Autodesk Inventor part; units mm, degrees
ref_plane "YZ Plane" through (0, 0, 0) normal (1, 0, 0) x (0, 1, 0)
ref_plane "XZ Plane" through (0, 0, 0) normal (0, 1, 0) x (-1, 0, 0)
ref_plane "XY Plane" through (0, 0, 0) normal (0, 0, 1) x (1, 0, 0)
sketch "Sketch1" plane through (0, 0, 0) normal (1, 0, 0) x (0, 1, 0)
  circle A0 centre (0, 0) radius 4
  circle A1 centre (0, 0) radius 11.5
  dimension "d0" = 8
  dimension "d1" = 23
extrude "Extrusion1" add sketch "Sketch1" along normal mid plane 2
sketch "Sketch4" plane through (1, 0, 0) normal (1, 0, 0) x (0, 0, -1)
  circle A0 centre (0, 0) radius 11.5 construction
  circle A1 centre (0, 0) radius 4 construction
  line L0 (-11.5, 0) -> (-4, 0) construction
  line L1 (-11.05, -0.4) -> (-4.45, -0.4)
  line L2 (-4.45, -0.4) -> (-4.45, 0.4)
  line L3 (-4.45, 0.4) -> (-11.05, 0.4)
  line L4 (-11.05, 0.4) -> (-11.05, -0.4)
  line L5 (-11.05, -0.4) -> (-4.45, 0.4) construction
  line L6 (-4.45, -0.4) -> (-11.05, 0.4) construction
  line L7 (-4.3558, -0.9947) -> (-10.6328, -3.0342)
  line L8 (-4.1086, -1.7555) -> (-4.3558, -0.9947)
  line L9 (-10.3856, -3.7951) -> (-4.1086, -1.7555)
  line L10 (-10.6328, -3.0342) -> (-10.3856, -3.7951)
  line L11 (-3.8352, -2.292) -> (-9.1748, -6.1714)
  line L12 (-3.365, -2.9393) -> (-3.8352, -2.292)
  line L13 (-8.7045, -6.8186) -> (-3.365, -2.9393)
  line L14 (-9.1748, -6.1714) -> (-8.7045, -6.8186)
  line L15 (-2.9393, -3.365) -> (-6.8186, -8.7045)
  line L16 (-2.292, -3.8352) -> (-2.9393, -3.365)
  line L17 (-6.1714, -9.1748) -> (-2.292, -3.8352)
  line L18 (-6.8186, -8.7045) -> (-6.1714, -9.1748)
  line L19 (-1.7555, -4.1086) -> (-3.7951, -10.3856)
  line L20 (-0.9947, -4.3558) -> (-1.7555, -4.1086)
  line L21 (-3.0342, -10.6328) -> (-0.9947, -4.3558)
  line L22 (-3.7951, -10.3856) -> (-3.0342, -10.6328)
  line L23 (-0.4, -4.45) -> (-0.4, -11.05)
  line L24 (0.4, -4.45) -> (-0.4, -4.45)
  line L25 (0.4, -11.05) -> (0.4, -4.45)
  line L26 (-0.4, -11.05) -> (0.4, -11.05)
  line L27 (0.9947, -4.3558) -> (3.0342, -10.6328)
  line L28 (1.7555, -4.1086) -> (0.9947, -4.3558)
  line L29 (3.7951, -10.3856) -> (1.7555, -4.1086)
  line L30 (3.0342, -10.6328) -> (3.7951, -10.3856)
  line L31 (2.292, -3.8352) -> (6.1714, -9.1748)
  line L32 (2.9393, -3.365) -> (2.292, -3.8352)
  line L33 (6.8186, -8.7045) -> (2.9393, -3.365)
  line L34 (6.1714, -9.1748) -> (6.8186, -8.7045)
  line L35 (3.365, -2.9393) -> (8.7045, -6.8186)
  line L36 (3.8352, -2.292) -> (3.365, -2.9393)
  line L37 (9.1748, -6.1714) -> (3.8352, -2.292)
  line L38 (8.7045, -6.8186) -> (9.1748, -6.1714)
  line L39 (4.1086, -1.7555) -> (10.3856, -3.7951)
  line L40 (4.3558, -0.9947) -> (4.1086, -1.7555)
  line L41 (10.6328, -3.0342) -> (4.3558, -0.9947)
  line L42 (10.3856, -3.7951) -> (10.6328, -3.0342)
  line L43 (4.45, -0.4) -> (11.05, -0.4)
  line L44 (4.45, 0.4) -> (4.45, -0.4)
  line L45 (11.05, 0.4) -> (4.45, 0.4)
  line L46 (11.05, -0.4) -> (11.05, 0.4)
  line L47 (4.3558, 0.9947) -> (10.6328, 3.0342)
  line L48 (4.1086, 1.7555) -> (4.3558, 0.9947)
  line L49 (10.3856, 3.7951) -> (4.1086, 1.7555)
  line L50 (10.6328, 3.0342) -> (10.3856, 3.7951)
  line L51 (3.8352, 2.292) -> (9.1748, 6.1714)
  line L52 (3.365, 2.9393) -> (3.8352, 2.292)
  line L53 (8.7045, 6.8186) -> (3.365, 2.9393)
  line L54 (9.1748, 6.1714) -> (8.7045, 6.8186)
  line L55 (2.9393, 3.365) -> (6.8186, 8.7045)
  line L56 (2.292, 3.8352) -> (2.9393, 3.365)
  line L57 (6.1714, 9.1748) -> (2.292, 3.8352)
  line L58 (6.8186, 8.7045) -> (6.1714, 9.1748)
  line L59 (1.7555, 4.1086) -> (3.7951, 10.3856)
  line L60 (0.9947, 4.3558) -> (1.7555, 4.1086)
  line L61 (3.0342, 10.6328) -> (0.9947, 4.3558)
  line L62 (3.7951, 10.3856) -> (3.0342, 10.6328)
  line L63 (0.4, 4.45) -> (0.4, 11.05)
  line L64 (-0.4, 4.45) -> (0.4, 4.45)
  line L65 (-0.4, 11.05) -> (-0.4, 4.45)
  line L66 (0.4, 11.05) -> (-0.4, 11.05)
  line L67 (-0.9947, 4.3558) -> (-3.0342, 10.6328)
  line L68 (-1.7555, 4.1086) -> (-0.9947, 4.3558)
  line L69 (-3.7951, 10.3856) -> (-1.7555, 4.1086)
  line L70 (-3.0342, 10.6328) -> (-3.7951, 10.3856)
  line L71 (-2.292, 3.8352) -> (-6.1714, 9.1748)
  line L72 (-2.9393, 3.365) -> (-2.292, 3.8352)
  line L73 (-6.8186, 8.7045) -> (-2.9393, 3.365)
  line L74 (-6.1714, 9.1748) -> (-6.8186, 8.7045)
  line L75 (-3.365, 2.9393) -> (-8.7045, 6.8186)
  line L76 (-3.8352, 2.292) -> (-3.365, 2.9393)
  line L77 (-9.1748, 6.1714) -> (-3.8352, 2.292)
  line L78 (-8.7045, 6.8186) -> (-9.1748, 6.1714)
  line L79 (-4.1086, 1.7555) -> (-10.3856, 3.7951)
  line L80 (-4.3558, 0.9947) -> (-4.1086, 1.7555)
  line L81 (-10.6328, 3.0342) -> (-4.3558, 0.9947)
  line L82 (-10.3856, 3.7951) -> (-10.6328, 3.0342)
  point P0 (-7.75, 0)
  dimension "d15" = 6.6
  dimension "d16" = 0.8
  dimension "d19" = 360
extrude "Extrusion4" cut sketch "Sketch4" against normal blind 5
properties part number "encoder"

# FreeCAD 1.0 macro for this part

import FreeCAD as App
import Part
import Sketcher

V = App.Vector
Q = App.Units.Quantity

doc = App.newDocument("Part")
body = doc.addObject("PartDesign::Body", "Body")

# Sketch on YZ plane
sketch1 = body.newObject("Sketcher::SketchObject", "Sketch")
sketch1.AttachmentSupport = (doc.getObject("YZ_Plane"), [""])
sketch1.MapMode = "FlatFace"
sketch1.addGeometry([
    Part.Circle(V(0, 0, 0), V(0, 0, 1), 11.5),
    Part.Circle(V(0, 0, 0), V(0, 0, 1), 4),
], False)
sketch1.addConstraint([
    Sketcher.Constraint("Coincident", 0, 3, -1, 1),
    Sketcher.Constraint("Coincident", 1, 3, -1, 1),
    Sketcher.Constraint("Diameter", 0, Q("23 mm")),
    Sketcher.Constraint("Diameter", 1, Q("8 mm")),
])
pad1 = body.newObject("PartDesign::Pad", "Pad")
pad1.Profile = sketch1
pad1.Length = 2
pad1.Midplane = True

# Sketch on YZ plane
sketch2 = body.newObject("Sketcher::SketchObject", "Sketch001")
sketch2.AttachmentSupport = (doc.getObject("YZ_Plane"), [""])
sketch2.MapMode = "FlatFace"
sketch2.AttachmentOffset = App.Placement(V(0, 0, 1), App.Rotation())
sketch2.addGeometry([
    Part.LineSegment(V(0.4, 11.1, 0), V(-0.4, 11.1, 0)),  # 0
    Part.LineSegment(V(-0.4, 11.1, 0), V(-0.4, 4.5, 0)),  # 1
    Part.LineSegment(V(-0.4, 4.5, 0), V(0.4, 4.5, 0)),  # 2
    Part.LineSegment(V(0.4, 4.5, 0), V(0.4, 11.1, 0)),  # 3
    Part.LineSegment(V(-1.8, 4.1, 0), V(-1, 4.4, 0)),  # 4
    Part.LineSegment(V(-1, 4.4, 0), V(-3, 10.6, 0)),  # 5
    Part.LineSegment(V(-3, 10.6, 0), V(-3.8, 10.4, 0)),  # 6
    Part.LineSegment(V(-3.8, 10.4, 0), V(-1.8, 4.1, 0)),  # 7
    Part.LineSegment(V(-2.9, 3.4, 0), V(-2.3, 3.8, 0)),  # 8
    Part.LineSegment(V(-2.3, 3.8, 0), V(-6.2, 9.2, 0)),  # 9
    Part.LineSegment(V(-6.2, 9.2, 0), V(-6.8, 8.7, 0)),  # 10
    Part.LineSegment(V(-6.8, 8.7, 0), V(-2.9, 3.4, 0)),  # 11
    Part.LineSegment(V(-3.8, 2.3, 0), V(-3.4, 2.9, 0)),  # 12
    Part.LineSegment(V(-3.4, 2.9, 0), V(-8.7, 6.8, 0)),  # 13
    Part.LineSegment(V(-8.7, 6.8, 0), V(-9.2, 6.2, 0)),  # 14
    Part.LineSegment(V(-9.2, 6.2, 0), V(-3.8, 2.3, 0)),  # 15
    Part.LineSegment(V(-4.4, 1, 0), V(-4.1, 1.8, 0)),  # 16
    Part.LineSegment(V(-4.1, 1.8, 0), V(-10.4, 3.8, 0)),  # 17
    Part.LineSegment(V(-10.4, 3.8, 0), V(-10.6, 3, 0)),  # 18
    Part.LineSegment(V(-10.6, 3, 0), V(-4.4, 1, 0)),  # 19
    Part.LineSegment(V(-4.5, -0.4, 0), V(-4.5, 0.4, 0)),  # 20
    Part.LineSegment(V(-4.5, 0.4, 0), V(-11.1, 0.4, 0)),  # 21
    Part.LineSegment(V(-11.1, 0.4, 0), V(-11.1, -0.4, 0)),  # 22
    Part.LineSegment(V(-11.1, -0.4, 0), V(-4.5, -0.4, 0)),  # 23
    Part.LineSegment(V(-4.1, -1.8, 0), V(-4.4, -1, 0)),  # 24
    Part.LineSegment(V(-4.4, -1, 0), V(-10.6, -3, 0)),  # 25
    Part.LineSegment(V(-10.6, -3, 0), V(-10.4, -3.8, 0)),  # 26
    Part.LineSegment(V(-10.4, -3.8, 0), V(-4.1, -1.8, 0)),  # 27
    Part.LineSegment(V(-3.4, -2.9, 0), V(-3.8, -2.3, 0)),  # 28
    Part.LineSegment(V(-3.8, -2.3, 0), V(-9.2, -6.2, 0)),  # 29
    Part.LineSegment(V(-9.2, -6.2, 0), V(-8.7, -6.8, 0)),  # 30
    Part.LineSegment(V(-8.7, -6.8, 0), V(-3.4, -2.9, 0)),  # 31
    Part.LineSegment(V(-2.3, -3.8, 0), V(-2.9, -3.4, 0)),  # 32
    Part.LineSegment(V(-2.9, -3.4, 0), V(-6.8, -8.7, 0)),  # 33
    Part.LineSegment(V(-6.8, -8.7, 0), V(-6.2, -9.2, 0)),  # 34
    Part.LineSegment(V(-6.2, -9.2, 0), V(-2.3, -3.8, 0)),  # 35
    Part.LineSegment(V(-1, -4.4, 0), V(-1.8, -4.1, 0)),  # 36
    Part.LineSegment(V(-1.8, -4.1, 0), V(-3.8, -10.4, 0)),  # 37
    Part.LineSegment(V(-3.8, -10.4, 0), V(-3, -10.6, 0)),  # 38
    Part.LineSegment(V(-3, -10.6, 0), V(-1, -4.4, 0)),  # 39
    Part.LineSegment(V(0.4, -4.5, 0), V(-0.4, -4.5, 0)),  # 40
    Part.LineSegment(V(-0.4, -4.5, 0), V(-0.4, -11.1, 0)),  # 41
    Part.LineSegment(V(-0.4, -11.1, 0), V(0.4, -11.1, 0)),  # 42
    Part.LineSegment(V(0.4, -11.1, 0), V(0.4, -4.5, 0)),  # 43
    Part.LineSegment(V(1.8, -4.1, 0), V(1, -4.4, 0)),  # 44
    Part.LineSegment(V(1, -4.4, 0), V(3, -10.6, 0)),  # 45
    Part.LineSegment(V(3, -10.6, 0), V(3.8, -10.4, 0)),  # 46
    Part.LineSegment(V(3.8, -10.4, 0), V(1.8, -4.1, 0)),  # 47
    Part.LineSegment(V(2.9, -3.4, 0), V(2.3, -3.8, 0)),  # 48
    Part.LineSegment(V(2.3, -3.8, 0), V(6.2, -9.2, 0)),  # 49
    Part.LineSegment(V(6.2, -9.2, 0), V(6.8, -8.7, 0)),  # 50
    Part.LineSegment(V(6.8, -8.7, 0), V(2.9, -3.4, 0)),  # 51
    Part.LineSegment(V(3.8, -2.3, 0), V(3.4, -2.9, 0)),  # 52
    Part.LineSegment(V(3.4, -2.9, 0), V(8.7, -6.8, 0)),  # 53
    Part.LineSegment(V(8.7, -6.8, 0), V(9.2, -6.2, 0)),  # 54
    Part.LineSegment(V(9.2, -6.2, 0), V(3.8, -2.3, 0)),  # 55
    Part.LineSegment(V(4.4, -1, 0), V(4.1, -1.8, 0)),  # 56
    Part.LineSegment(V(4.1, -1.8, 0), V(10.4, -3.8, 0)),  # 57
    Part.LineSegment(V(10.4, -3.8, 0), V(10.6, -3, 0)),  # 58
    Part.LineSegment(V(10.6, -3, 0), V(4.4, -1, 0)),  # 59
    Part.LineSegment(V(4.5, 0.4, 0), V(4.5, -0.4, 0)),  # 60
    Part.LineSegment(V(4.5, -0.4, 0), V(11.1, -0.4, 0)),  # 61
    Part.LineSegment(V(11.1, -0.4, 0), V(11.1, 0.4, 0)),  # 62
    Part.LineSegment(V(11.1, 0.4, 0), V(4.5, 0.4, 0)),  # 63
    Part.LineSegment(V(4.1, 1.8, 0), V(4.4, 1, 0)),  # 64
    Part.LineSegment(V(4.4, 1, 0), V(10.6, 3, 0)),  # 65
    Part.LineSegment(V(10.6, 3, 0), V(10.4, 3.8, 0)),  # 66
    Part.LineSegment(V(10.4, 3.8, 0), V(4.1, 1.8, 0)),  # 67
    Part.LineSegment(V(3.4, 2.9, 0), V(3.8, 2.3, 0)),  # 68
    Part.LineSegment(V(3.8, 2.3, 0), V(9.2, 6.2, 0)),  # 69
    Part.LineSegment(V(9.2, 6.2, 0), V(8.7, 6.8, 0)),  # 70
    Part.LineSegment(V(8.7, 6.8, 0), V(3.4, 2.9, 0)),  # 71
    Part.LineSegment(V(2.3, 3.8, 0), V(2.9, 3.4, 0)),  # 72
    Part.LineSegment(V(2.9, 3.4, 0), V(6.8, 8.7, 0)),  # 73
    Part.LineSegment(V(6.8, 8.7, 0), V(6.2, 9.2, 0)),  # 74
    Part.LineSegment(V(6.2, 9.2, 0), V(2.3, 3.8, 0)),  # 75
    Part.LineSegment(V(1, 4.4, 0), V(1.8, 4.1, 0)),  # 76
    Part.LineSegment(V(1.8, 4.1, 0), V(3.8, 10.4, 0)),  # 77
    Part.LineSegment(V(3.8, 10.4, 0), V(3, 10.6, 0)),  # 78
    Part.LineSegment(V(3, 10.6, 0), V(1, 4.4, 0)),  # 79
], False)
sketch2.addConstraint([
    Sketcher.Constraint("Coincident", 0, 2, 1, 1),
    Sketcher.Constraint("Coincident", 1, 2, 2, 1),
    Sketcher.Constraint("Coincident", 2, 2, 3, 1),
    Sketcher.Constraint("Coincident", 3, 2, 0, 1),
    Sketcher.Constraint("Coincident", 4, 2, 5, 1),
    Sketcher.Constraint("Coincident", 5, 2, 6, 1),
    Sketcher.Constraint("Coincident", 6, 2, 7, 1),
    Sketcher.Constraint("Coincident", 7, 2, 4, 1),
    Sketcher.Constraint("Coincident", 8, 2, 9, 1),
    Sketcher.Constraint("Coincident", 9, 2, 10, 1),
    Sketcher.Constraint("Coincident", 10, 2, 11, 1),
    Sketcher.Constraint("Coincident", 11, 2, 8, 1),
    Sketcher.Constraint("Coincident", 12, 2, 13, 1),
    Sketcher.Constraint("Coincident", 13, 2, 14, 1),
    Sketcher.Constraint("Coincident", 14, 2, 15, 1),
    Sketcher.Constraint("Coincident", 15, 2, 12, 1),
    Sketcher.Constraint("Coincident", 16, 2, 17, 1),
    Sketcher.Constraint("Coincident", 17, 2, 18, 1),
    Sketcher.Constraint("Coincident", 18, 2, 19, 1),
    Sketcher.Constraint("Coincident", 19, 2, 16, 1),
    Sketcher.Constraint("Coincident", 20, 2, 21, 1),
    Sketcher.Constraint("Coincident", 21, 2, 22, 1),
    Sketcher.Constraint("Coincident", 22, 2, 23, 1),
    Sketcher.Constraint("Coincident", 23, 2, 20, 1),
    Sketcher.Constraint("Coincident", 24, 2, 25, 1),
    Sketcher.Constraint("Coincident", 25, 2, 26, 1),
    Sketcher.Constraint("Coincident", 26, 2, 27, 1),
    Sketcher.Constraint("Coincident", 27, 2, 24, 1),
    Sketcher.Constraint("Coincident", 28, 2, 29, 1),
    Sketcher.Constraint("Coincident", 29, 2, 30, 1),
    Sketcher.Constraint("Coincident", 30, 2, 31, 1),
    Sketcher.Constraint("Coincident", 31, 2, 28, 1),
    Sketcher.Constraint("Coincident", 32, 2, 33, 1),
    Sketcher.Constraint("Coincident", 33, 2, 34, 1),
    Sketcher.Constraint("Coincident", 34, 2, 35, 1),
    Sketcher.Constraint("Coincident", 35, 2, 32, 1),
    Sketcher.Constraint("Coincident", 36, 2, 37, 1),
    Sketcher.Constraint("Coincident", 37, 2, 38, 1),
    Sketcher.Constraint("Coincident", 38, 2, 39, 1),
    Sketcher.Constraint("Coincident", 39, 2, 36, 1),
    Sketcher.Constraint("Coincident", 40, 2, 41, 1),
    Sketcher.Constraint("Coincident", 41, 2, 42, 1),
    Sketcher.Constraint("Coincident", 42, 2, 43, 1),
    Sketcher.Constraint("Coincident", 43, 2, 40, 1),
    Sketcher.Constraint("Coincident", 44, 2, 45, 1),
    Sketcher.Constraint("Coincident", 45, 2, 46, 1),
    Sketcher.Constraint("Coincident", 46, 2, 47, 1),
    Sketcher.Constraint("Coincident", 47, 2, 44, 1),
    Sketcher.Constraint("Coincident", 48, 2, 49, 1),
    Sketcher.Constraint("Coincident", 49, 2, 50, 1),
    Sketcher.Constraint("Coincident", 50, 2, 51, 1),
    Sketcher.Constraint("Coincident", 51, 2, 48, 1),
    Sketcher.Constraint("Coincident", 52, 2, 53, 1),
    Sketcher.Constraint("Coincident", 53, 2, 54, 1),
    Sketcher.Constraint("Coincident", 54, 2, 55, 1),
    Sketcher.Constraint("Coincident", 55, 2, 52, 1),
    Sketcher.Constraint("Coincident", 56, 2, 57, 1),
    Sketcher.Constraint("Coincident", 57, 2, 58, 1),
    Sketcher.Constraint("Coincident", 58, 2, 59, 1),
    Sketcher.Constraint("Coincident", 59, 2, 56, 1),
    Sketcher.Constraint("Coincident", 60, 2, 61, 1),
    Sketcher.Constraint("Coincident", 61, 2, 62, 1),
    Sketcher.Constraint("Coincident", 62, 2, 63, 1),
    Sketcher.Constraint("Coincident", 63, 2, 60, 1),
    Sketcher.Constraint("Coincident", 64, 2, 65, 1),
    Sketcher.Constraint("Coincident", 65, 2, 66, 1),
    Sketcher.Constraint("Coincident", 66, 2, 67, 1),
    Sketcher.Constraint("Coincident", 67, 2, 64, 1),
    Sketcher.Constraint("Coincident", 68, 2, 69, 1),
    Sketcher.Constraint("Coincident", 69, 2, 70, 1),
    Sketcher.Constraint("Coincident", 70, 2, 71, 1),
    Sketcher.Constraint("Coincident", 71, 2, 68, 1),
    Sketcher.Constraint("Coincident", 72, 2, 73, 1),
    Sketcher.Constraint("Coincident", 73, 2, 74, 1),
    Sketcher.Constraint("Coincident", 74, 2, 75, 1),
    Sketcher.Constraint("Coincident", 75, 2, 72, 1),
    Sketcher.Constraint("Coincident", 76, 2, 77, 1),
    Sketcher.Constraint("Coincident", 77, 2, 78, 1),
    Sketcher.Constraint("Coincident", 78, 2, 79, 1),
    Sketcher.Constraint("Coincident", 79, 2, 76, 1),
    Sketcher.Constraint("Horizontal", 0),
    Sketcher.Constraint("Vertical", 1),
    Sketcher.Constraint("Horizontal", 2),
    Sketcher.Constraint("Vertical", 3),
    Sketcher.Constraint("Vertical", 20),
    Sketcher.Constraint("Horizontal", 21),
    Sketcher.Constraint("Vertical", 22),
    Sketcher.Constraint("Horizontal", 23),
    Sketcher.Constraint("Horizontal", 40),
    Sketcher.Constraint("Vertical", 41),
    Sketcher.Constraint("Horizontal", 42),
    Sketcher.Constraint("Vertical", 43),
    Sketcher.Constraint("Vertical", 60),
    Sketcher.Constraint("Horizontal", 61),
    Sketcher.Constraint("Vertical", 62),
    Sketcher.Constraint("Horizontal", 63),
    Sketcher.Constraint("Symmetric", 2, 2, 40, 2, -1, 1),
    Sketcher.Constraint("Symmetric", 0, 2, 42, 2, -1, 1),
    Sketcher.Constraint("Symmetric", 4, 2, 44, 2, -1, 1),
    Sketcher.Constraint("Symmetric", 5, 2, 45, 2, -1, 1),
    Sketcher.Constraint("Symmetric", 6, 2, 46, 2, -1, 1),
    Sketcher.Constraint("Symmetric", 7, 2, 47, 2, -1, 1),
    Sketcher.Constraint("Symmetric", 8, 2, 48, 2, -1, 1),
    Sketcher.Constraint("Symmetric", 9, 2, 49, 2, -1, 1),
    Sketcher.Constraint("Symmetric", 10, 2, 50, 2, -1, 1),
    Sketcher.Constraint("Symmetric", 11, 2, 51, 2, -1, 1),
    Sketcher.Constraint("Symmetric", 12, 2, 52, 2, -1, 1),
    Sketcher.Constraint("Symmetric", 13, 2, 53, 2, -1, 1),
    Sketcher.Constraint("Symmetric", 14, 2, 54, 2, -1, 1),
    Sketcher.Constraint("Symmetric", 15, 2, 55, 2, -1, 1),
    Sketcher.Constraint("Symmetric", 16, 2, 56, 2, -1, 1),
    Sketcher.Constraint("Symmetric", 17, 2, 57, 2, -1, 1),
    Sketcher.Constraint("Symmetric", 18, 2, 58, 2, -1, 1),
    Sketcher.Constraint("Symmetric", 19, 2, 59, 2, -1, 1),
    Sketcher.Constraint("Symmetric", 20, 2, 60, 2, -1, 1),
    Sketcher.Constraint("Symmetric", 22, 2, 62, 2, -1, 1),
    Sketcher.Constraint("Symmetric", 24, 2, 64, 2, -1, 1),
    Sketcher.Constraint("Symmetric", 25, 2, 65, 2, -1, 1),
    Sketcher.Constraint("Symmetric", 26, 2, 66, 2, -1, 1),
    Sketcher.Constraint("Symmetric", 27, 2, 67, 2, -1, 1),
    Sketcher.Constraint("Symmetric", 28, 2, 68, 2, -1, 1),
    Sketcher.Constraint("Symmetric", 29, 2, 69, 2, -1, 1),
    Sketcher.Constraint("Symmetric", 30, 2, 70, 2, -1, 1),
    Sketcher.Constraint("Symmetric", 31, 2, 71, 2, -1, 1),
    Sketcher.Constraint("Symmetric", 32, 2, 72, 2, -1, 1),
    Sketcher.Constraint("Symmetric", 33, 2, 73, 2, -1, 1),
    Sketcher.Constraint("Symmetric", 34, 2, 74, 2, -1, 1),
    Sketcher.Constraint("Symmetric", 35, 2, 75, 2, -1, 1),
    Sketcher.Constraint("Symmetric", 36, 2, 76, 2, -1, 1),
    Sketcher.Constraint("Symmetric", 37, 2, 77, 2, -1, 1),
    Sketcher.Constraint("Symmetric", 38, 2, 78, 2, -1, 1),
    Sketcher.Constraint("Symmetric", 39, 2, 79, 2, -1, 1),
    Sketcher.Constraint("Symmetric", 39, 2, 44, 2, -2),
    Sketcher.Constraint("Symmetric", 38, 2, 45, 2, -2),
    Sketcher.Constraint("Symmetric", 37, 2, 46, 2, -2),
    Sketcher.Constraint("Symmetric", 36, 2, 47, 2, -2),
    Sketcher.Constraint("Symmetric", 35, 2, 48, 2, -2),
    Sketcher.Constraint("Symmetric", 34, 2, 49, 2, -2),
    Sketcher.Constraint("Symmetric", 33, 2, 50, 2, -2),
    Sketcher.Constraint("Symmetric", 32, 2, 51, 2, -2),
    Sketcher.Constraint("Symmetric", 31, 2, 52, 2, -2),
    Sketcher.Constraint("Symmetric", 30, 2, 53, 2, -2),
    Sketcher.Constraint("Symmetric", 29, 2, 54, 2, -2),
    Sketcher.Constraint("Symmetric", 28, 2, 55, 2, -2),
    Sketcher.Constraint("Symmetric", 27, 2, 56, 2, -2),
    Sketcher.Constraint("Symmetric", 26, 2, 57, 2, -2),
    Sketcher.Constraint("Symmetric", 25, 2, 58, 2, -2),
    Sketcher.Constraint("Symmetric", 24, 2, 59, 2, -2),
    Sketcher.Constraint("Perpendicular", 4, 5),
    Sketcher.Constraint("Perpendicular", 5, 6),
    Sketcher.Constraint("Perpendicular", 6, 7),
    Sketcher.Constraint("Perpendicular", 8, 9),
    Sketcher.Constraint("Perpendicular", 9, 10),
    Sketcher.Constraint("Perpendicular", 10, 11),
    Sketcher.Constraint("Perpendicular", 12, 13),
    Sketcher.Constraint("Perpendicular", 13, 14),
    Sketcher.Constraint("Perpendicular", 14, 15),
    Sketcher.Constraint("Perpendicular", 16, 17),
    Sketcher.Constraint("Perpendicular", 17, 18),
    Sketcher.Constraint("Perpendicular", 18, 19),
    Sketcher.Constraint("Parallel", 7, 24),
    Sketcher.Constraint("Parallel", 11, 28),
    Sketcher.Constraint("Horizontal", 23, 2, 60, 2),
    Sketcher.Constraint("Vertical", 1, 2, 40, 2),
    Sketcher.Constraint("Equal", 63, 1),
    Sketcher.Constraint("Equal", 42, 20),
    Sketcher.Constraint("Equal", 6, 8),
    Sketcher.Constraint("Equal", 7, 9),
    Sketcher.Constraint("Equal", 10, 12),
    Sketcher.Constraint("Equal", 11, 13),
    Sketcher.Constraint("Equal", 14, 16),
    Sketcher.Constraint("Equal", 15, 17),
    Sketcher.Constraint("DistanceX", 0, 2, 0, 1, Q("0.8 mm")),
    Sketcher.Constraint("DistanceX", 21, 2, 21, 1, Q("6.6 mm")),
    Sketcher.Constraint("Distance", 4, Q("0.8 mm")),
    Sketcher.Constraint("Distance", 5, Q("6.6 mm")),
    Sketcher.Constraint("Angle", 4, Q("18 deg")),
    Sketcher.Constraint("Angle", 9, Q("125.9997 deg")),
    Sketcher.Constraint("DistanceY", -1, 1, 0, 2, Q("11.05 mm")),
    Sketcher.Constraint("DistanceX", 20, 2, -1, 1, Q("4.45 mm")),
    Sketcher.Constraint("DistanceX", 6, 2, -1, 1, Q("3.795 mm")),
    Sketcher.Constraint("DistanceX", 8, 2, -1, 1, Q("2.292 mm")),
    Sketcher.Constraint("DistanceY", -1, 1, 11, 2, Q("3.365 mm")),
    Sketcher.Constraint("DistanceX", 12, 2, -1, 1, Q("3.365 mm")),
    Sketcher.Constraint("DistanceY", -1, 1, 15, 2, Q("2.292 mm")),
    Sketcher.Constraint("DistanceY", -1, 1, 17, 2, Q("3.795 mm")),
    Sketcher.Constraint("DistanceY", -1, 1, 4, 2, Q("4.3558 mm")),
    Sketcher.Constraint("DistanceX", 16, 2, -1, 1, Q("4.1086 mm")),
])
pocket1 = body.newObject("PartDesign::Pocket", "Pocket")
pocket1.Profile = sketch2
pocket1.Length = 5

doc.recompute()
